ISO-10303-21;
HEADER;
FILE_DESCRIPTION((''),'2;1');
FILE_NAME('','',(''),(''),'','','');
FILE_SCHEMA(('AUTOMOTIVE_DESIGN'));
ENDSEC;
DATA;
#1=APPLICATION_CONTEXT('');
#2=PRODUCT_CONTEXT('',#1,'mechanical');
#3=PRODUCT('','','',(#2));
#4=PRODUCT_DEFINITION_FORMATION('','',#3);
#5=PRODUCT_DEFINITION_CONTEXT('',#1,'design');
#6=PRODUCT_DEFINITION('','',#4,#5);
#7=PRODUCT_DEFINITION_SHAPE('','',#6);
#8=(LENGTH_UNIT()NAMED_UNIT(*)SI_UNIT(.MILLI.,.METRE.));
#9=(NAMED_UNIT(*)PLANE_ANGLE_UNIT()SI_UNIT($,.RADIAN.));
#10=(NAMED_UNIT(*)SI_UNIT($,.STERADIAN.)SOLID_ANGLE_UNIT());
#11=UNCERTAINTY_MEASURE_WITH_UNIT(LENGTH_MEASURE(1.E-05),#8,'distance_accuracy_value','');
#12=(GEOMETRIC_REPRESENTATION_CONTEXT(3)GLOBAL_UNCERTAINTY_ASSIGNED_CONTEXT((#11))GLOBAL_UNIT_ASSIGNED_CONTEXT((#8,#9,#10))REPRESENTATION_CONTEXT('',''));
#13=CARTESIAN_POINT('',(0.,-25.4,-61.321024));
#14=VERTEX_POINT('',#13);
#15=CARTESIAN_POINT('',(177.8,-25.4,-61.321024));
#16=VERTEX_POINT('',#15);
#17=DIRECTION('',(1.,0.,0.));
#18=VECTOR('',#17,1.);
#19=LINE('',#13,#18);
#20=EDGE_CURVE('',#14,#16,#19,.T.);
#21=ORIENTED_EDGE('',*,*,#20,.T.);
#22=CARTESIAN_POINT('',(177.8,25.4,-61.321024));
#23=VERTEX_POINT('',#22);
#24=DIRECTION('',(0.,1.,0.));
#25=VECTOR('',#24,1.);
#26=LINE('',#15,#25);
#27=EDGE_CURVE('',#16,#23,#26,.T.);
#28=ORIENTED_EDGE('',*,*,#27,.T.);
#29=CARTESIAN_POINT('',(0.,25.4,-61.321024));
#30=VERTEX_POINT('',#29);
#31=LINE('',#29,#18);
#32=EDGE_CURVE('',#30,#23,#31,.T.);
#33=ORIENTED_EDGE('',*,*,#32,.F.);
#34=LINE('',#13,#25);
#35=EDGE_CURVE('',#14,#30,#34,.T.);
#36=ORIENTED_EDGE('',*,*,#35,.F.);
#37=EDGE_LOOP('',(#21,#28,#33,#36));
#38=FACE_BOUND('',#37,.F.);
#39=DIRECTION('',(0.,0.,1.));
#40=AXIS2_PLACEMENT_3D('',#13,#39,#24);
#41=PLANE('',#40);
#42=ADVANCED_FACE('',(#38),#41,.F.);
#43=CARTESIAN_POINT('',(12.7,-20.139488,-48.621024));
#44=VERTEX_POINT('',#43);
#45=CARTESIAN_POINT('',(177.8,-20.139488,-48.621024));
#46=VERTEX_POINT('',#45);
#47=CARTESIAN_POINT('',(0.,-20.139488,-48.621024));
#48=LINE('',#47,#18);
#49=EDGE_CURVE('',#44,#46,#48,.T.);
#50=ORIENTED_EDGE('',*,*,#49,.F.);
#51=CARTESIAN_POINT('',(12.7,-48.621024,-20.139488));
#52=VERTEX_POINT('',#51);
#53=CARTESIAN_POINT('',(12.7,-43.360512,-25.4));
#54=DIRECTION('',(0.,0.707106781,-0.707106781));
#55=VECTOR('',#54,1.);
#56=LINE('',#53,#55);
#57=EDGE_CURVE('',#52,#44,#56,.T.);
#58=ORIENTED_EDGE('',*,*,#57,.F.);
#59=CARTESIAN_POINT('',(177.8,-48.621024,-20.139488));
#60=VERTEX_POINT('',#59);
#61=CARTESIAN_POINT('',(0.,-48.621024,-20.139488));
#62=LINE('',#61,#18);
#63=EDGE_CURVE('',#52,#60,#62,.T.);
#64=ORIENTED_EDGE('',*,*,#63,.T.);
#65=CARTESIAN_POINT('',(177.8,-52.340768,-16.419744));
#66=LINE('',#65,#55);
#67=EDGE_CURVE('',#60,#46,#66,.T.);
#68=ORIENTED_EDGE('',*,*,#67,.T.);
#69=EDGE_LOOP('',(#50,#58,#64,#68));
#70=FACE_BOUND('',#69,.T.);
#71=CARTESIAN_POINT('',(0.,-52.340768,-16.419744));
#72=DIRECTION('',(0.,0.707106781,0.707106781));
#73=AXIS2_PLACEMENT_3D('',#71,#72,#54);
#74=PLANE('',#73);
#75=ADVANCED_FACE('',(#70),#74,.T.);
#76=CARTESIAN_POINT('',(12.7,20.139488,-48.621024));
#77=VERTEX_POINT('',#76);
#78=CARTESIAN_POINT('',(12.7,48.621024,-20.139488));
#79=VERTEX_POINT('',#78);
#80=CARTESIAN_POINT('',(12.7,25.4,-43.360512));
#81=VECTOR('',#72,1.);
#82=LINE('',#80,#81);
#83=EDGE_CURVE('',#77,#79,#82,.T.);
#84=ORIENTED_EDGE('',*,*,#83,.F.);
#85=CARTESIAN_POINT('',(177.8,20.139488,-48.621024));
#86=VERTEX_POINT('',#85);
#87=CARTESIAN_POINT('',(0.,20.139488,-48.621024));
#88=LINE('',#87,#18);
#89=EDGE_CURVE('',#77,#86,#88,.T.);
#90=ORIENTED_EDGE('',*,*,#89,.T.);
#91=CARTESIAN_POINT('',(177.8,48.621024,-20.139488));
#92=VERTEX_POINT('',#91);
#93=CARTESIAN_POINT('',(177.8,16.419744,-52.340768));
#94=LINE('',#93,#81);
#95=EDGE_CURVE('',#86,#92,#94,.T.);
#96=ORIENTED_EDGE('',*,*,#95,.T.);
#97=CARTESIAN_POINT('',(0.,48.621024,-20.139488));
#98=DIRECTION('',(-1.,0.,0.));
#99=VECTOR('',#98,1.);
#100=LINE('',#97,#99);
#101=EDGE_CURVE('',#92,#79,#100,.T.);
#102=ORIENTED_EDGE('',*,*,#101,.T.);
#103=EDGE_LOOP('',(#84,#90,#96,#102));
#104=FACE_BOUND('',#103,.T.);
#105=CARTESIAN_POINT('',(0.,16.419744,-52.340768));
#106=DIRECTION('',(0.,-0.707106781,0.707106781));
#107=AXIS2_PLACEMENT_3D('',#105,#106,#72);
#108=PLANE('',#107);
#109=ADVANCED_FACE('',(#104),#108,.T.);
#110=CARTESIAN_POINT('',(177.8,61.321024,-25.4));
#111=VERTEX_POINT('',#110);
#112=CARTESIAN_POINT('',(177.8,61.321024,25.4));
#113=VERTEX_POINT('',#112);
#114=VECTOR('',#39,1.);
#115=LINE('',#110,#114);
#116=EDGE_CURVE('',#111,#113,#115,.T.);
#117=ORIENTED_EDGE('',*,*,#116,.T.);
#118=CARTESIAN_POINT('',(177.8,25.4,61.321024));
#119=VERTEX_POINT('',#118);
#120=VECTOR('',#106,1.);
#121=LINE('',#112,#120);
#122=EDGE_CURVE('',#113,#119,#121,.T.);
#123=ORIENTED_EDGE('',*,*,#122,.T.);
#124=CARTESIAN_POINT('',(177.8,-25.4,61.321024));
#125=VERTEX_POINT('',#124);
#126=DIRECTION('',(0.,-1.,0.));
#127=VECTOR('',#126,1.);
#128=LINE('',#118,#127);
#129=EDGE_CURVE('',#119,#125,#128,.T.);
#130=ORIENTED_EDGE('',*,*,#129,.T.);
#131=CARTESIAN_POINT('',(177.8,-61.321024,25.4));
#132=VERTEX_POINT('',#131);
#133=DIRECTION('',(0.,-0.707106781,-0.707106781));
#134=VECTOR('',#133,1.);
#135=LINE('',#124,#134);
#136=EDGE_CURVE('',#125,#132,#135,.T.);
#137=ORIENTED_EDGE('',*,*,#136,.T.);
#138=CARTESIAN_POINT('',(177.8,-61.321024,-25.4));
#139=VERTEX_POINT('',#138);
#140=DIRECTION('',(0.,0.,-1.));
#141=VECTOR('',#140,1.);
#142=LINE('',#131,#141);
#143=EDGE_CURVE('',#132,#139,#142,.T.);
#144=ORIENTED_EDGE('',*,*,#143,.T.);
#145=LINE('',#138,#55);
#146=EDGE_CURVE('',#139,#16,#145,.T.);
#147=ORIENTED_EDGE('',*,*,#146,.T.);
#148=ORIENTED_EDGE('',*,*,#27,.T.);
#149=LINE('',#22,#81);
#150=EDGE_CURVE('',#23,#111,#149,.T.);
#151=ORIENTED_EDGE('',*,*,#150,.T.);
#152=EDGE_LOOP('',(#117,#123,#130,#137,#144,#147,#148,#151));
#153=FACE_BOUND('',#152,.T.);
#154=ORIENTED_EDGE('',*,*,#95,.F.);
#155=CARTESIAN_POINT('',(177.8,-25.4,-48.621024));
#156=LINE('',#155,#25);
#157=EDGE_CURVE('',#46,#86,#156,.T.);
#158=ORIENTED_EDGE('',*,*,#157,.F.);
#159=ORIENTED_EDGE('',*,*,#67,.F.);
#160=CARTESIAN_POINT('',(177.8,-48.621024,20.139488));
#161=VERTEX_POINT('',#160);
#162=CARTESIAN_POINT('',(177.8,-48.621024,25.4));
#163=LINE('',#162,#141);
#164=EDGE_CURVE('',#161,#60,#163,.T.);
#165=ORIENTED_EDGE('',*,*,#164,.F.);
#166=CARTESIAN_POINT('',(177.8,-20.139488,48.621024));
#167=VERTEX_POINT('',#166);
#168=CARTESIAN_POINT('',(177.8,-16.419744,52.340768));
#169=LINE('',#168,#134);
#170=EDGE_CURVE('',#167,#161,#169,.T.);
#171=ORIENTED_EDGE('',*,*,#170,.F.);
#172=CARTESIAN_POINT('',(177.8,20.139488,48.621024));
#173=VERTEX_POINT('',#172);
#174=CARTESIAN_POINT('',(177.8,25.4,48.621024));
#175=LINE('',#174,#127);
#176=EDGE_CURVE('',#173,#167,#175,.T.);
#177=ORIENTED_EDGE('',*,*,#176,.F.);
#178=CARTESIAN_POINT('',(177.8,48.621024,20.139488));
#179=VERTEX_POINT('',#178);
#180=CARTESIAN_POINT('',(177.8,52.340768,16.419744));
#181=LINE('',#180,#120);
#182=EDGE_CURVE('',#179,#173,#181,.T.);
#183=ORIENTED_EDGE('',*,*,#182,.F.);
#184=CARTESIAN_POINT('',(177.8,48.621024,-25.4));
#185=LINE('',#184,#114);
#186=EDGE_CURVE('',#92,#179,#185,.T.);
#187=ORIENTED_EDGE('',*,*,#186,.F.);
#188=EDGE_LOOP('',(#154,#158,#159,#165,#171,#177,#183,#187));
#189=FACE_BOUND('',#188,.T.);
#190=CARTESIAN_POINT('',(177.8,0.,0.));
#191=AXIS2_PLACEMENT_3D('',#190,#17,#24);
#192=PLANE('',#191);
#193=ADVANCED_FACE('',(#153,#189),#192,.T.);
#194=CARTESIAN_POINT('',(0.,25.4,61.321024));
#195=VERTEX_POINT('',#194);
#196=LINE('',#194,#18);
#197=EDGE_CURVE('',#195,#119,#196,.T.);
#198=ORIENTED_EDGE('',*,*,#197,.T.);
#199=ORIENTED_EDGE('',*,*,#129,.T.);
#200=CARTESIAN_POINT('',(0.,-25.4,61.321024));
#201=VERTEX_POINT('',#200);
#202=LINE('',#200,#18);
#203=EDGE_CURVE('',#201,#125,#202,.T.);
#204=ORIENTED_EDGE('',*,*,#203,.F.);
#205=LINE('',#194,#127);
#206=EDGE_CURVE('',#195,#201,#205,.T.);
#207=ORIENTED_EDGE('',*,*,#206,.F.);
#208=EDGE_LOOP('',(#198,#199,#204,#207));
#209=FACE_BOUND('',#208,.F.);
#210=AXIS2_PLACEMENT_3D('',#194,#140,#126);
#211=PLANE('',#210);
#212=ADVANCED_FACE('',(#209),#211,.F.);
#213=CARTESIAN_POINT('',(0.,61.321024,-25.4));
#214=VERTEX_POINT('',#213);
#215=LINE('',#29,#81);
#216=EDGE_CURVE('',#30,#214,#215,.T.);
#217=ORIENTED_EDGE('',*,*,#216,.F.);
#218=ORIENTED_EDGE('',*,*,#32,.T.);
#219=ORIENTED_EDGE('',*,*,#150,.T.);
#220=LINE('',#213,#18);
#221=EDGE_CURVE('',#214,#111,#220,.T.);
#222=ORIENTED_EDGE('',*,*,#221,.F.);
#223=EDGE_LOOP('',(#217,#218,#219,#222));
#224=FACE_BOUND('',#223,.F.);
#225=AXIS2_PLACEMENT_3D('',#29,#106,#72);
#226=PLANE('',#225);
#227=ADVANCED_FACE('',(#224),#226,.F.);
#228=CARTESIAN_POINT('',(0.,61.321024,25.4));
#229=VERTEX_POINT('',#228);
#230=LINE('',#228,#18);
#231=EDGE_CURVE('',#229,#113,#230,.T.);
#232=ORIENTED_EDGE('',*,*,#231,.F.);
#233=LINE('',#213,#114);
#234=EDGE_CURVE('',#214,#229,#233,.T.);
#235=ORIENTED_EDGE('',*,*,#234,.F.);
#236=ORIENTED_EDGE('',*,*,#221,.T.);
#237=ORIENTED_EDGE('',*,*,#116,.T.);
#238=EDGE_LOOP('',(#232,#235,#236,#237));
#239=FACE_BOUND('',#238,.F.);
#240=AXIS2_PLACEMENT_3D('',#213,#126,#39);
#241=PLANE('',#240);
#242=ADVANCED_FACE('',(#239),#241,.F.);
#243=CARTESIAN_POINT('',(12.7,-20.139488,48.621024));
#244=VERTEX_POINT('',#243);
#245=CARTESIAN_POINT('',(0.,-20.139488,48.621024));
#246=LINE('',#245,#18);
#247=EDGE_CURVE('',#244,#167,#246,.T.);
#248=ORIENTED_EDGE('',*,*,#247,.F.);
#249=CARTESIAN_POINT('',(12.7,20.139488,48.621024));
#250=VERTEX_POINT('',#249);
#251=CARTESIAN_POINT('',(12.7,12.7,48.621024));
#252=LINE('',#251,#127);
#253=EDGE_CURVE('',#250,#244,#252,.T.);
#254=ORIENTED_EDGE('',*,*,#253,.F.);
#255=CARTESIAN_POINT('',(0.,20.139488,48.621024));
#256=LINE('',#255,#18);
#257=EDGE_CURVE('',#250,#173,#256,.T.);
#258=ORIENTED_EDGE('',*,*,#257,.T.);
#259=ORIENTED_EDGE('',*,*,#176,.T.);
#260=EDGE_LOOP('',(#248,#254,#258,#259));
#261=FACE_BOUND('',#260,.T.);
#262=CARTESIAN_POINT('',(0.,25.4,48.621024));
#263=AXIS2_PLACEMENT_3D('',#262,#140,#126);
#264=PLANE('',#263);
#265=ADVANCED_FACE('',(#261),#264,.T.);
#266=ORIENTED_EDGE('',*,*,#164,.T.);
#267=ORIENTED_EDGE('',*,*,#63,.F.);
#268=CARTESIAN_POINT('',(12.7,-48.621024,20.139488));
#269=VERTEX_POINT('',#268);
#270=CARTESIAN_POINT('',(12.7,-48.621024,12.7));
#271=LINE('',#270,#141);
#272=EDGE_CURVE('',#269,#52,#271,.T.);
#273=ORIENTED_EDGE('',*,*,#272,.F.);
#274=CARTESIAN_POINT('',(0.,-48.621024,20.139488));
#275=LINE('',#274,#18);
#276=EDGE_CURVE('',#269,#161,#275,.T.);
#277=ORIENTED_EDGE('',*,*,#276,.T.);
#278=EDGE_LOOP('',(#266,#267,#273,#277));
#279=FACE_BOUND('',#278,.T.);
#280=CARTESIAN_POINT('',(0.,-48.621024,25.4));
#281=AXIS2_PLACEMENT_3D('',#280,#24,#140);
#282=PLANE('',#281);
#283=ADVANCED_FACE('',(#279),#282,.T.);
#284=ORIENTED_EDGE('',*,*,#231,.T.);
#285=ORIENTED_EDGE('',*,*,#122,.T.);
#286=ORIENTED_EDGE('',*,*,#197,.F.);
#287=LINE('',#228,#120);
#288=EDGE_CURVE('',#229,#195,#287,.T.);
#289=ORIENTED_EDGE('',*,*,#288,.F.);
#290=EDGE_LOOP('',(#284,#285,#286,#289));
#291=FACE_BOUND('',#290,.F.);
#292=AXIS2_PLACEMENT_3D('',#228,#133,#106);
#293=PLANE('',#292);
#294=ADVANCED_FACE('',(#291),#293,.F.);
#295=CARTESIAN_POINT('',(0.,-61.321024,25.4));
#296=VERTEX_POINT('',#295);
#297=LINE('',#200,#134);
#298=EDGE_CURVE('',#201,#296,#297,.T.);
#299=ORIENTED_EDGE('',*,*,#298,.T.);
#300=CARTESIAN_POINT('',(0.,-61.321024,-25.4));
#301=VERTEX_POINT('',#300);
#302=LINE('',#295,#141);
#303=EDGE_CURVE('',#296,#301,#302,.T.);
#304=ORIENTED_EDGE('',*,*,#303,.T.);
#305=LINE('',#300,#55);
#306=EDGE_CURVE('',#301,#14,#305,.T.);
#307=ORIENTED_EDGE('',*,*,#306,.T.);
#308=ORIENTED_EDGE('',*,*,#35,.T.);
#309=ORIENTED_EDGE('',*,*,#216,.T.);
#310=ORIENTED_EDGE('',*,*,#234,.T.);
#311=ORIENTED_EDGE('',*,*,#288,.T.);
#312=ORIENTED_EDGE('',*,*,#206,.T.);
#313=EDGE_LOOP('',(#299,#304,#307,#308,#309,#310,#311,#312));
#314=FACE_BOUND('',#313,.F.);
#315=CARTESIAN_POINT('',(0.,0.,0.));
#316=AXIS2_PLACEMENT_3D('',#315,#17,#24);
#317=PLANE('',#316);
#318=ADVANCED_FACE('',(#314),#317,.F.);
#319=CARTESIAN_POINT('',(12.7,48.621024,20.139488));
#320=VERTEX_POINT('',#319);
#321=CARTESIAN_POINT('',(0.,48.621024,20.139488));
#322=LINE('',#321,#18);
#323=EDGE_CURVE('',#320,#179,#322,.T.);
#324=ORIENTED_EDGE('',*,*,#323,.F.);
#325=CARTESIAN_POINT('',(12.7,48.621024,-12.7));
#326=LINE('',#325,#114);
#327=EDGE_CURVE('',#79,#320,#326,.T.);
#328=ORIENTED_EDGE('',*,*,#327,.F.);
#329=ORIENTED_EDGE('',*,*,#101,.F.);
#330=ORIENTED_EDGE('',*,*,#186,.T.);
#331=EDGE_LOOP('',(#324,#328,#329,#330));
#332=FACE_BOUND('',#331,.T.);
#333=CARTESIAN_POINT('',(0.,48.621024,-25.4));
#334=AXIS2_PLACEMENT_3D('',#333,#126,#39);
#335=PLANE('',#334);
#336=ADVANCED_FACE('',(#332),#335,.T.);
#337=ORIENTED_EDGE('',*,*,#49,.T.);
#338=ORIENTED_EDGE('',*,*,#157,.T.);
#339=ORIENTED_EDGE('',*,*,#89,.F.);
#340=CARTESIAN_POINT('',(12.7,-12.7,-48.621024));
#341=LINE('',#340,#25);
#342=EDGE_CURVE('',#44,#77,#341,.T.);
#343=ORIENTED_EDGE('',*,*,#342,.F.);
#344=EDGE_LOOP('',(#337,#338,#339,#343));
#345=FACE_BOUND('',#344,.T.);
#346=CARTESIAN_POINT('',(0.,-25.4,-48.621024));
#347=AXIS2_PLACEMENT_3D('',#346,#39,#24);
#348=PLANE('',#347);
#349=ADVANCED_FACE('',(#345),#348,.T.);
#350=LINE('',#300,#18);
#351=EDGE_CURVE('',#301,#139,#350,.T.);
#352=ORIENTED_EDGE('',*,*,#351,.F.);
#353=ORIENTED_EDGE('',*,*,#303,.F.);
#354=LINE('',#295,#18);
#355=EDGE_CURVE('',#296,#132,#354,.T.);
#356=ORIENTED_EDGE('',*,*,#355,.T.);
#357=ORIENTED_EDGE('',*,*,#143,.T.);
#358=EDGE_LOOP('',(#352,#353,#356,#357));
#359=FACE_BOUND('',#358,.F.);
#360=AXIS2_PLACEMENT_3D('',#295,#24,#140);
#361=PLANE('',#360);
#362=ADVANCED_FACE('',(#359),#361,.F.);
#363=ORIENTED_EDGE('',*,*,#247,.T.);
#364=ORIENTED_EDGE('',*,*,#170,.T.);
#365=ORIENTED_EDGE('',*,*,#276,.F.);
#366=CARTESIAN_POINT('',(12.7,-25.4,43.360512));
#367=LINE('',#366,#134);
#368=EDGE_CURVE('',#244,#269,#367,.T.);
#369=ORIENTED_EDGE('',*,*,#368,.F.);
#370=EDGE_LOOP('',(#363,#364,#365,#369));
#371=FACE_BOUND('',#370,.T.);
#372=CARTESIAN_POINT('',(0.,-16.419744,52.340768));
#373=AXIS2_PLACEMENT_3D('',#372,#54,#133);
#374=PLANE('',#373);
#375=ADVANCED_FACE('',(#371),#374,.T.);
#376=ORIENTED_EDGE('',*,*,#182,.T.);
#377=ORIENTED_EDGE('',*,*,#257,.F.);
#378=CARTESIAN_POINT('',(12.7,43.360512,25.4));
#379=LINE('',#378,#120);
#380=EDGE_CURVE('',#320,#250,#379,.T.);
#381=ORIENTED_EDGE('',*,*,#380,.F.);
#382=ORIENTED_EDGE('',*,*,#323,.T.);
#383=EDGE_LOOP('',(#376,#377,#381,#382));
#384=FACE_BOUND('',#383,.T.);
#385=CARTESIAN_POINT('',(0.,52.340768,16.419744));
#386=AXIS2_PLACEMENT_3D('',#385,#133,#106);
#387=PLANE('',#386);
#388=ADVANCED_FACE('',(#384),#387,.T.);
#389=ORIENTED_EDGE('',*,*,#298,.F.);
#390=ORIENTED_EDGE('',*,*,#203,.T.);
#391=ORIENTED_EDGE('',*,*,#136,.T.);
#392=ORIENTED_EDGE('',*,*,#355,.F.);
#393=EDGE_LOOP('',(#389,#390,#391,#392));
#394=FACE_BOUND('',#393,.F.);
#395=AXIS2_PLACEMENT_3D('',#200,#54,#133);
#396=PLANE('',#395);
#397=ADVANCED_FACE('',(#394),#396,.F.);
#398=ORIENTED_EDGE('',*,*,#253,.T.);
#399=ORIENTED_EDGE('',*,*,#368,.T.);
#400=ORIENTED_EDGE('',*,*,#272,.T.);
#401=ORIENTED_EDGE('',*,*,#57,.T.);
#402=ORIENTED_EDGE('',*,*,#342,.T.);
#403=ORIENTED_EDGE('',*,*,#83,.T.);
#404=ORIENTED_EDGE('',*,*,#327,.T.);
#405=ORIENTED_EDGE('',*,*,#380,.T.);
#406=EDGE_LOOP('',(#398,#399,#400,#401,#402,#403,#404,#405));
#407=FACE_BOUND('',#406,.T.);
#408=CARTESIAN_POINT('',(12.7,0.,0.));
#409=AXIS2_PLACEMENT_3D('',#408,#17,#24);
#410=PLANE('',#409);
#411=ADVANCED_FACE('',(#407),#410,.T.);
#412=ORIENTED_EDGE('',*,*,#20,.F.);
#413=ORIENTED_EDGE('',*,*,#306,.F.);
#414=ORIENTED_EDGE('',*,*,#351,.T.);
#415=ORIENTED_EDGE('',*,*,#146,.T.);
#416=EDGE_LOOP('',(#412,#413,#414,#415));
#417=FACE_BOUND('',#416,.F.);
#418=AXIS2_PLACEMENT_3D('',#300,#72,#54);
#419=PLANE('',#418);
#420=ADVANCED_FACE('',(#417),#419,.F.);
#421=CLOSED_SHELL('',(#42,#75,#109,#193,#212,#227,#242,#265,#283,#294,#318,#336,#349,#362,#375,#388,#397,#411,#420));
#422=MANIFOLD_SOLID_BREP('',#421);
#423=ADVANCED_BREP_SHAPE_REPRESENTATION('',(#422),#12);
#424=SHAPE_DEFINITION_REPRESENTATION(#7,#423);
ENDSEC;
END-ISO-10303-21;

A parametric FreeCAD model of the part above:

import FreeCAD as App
import Part
import Sketcher
from FreeCAD import Vector
Q = App.Units.Quantity


def faces_at(feature, points):
    """Names of the faces that lie closest to the given points."""
    faces = feature.Shape.Faces
    near = lambda p: min(range(len(faces)), key=lambda i: faces[i].distToShape(Part.Vertex(*p))[0])
    return sorted({f"Face{near(p) + 1}" for p in points})


def add_polygon(sketch, points):
    """Adds a closed chain of lines whose ends are joined by coincident constraints."""
    first, n = sketch.GeometryCount, len(points)
    for a, b in zip(points, points[1:] + points[:1]):
        sketch.addGeometry(Part.LineSegment(App.Vector(*a, 0), App.Vector(*b, 0)), False)
    for i in range(n):
        sketch.addConstraint(Sketcher.Constraint("Coincident", first + i, 2, first + (i + 1) % n, 1))

doc = App.newDocument("Part")
body = doc.addObject("PartDesign::Body", "Body")

sketch1 = body.newObject("Sketcher::SketchObject", "Sketch")
sketch1.AttachmentSupport = (doc.getObject("YZ_Plane"), [""])
sketch1.MapMode = "FlatFace"
add_polygon(sketch1, [(61, -25), (61, 25), (25, 61), (-25, 61), (-61, 25), (-61, -25), (-25, -61), (25, -61)])
sketch1.addConstraint([
    Sketcher.Constraint("Vertical", 0),
    Sketcher.Constraint("Horizontal", 2),
    Sketcher.Constraint("Vertical", 4),
    Sketcher.Constraint("Horizontal", 6),
    Sketcher.Constraint("Symmetric", 0, 2, 4, 2, -1, 1),
    Sketcher.Constraint("Symmetric", 1, 2, 5, 2, -1, 1),
    Sketcher.Constraint("Perpendicular", 1, 3),
    Sketcher.Constraint("Perpendicular", 5, 7),
    Sketcher.Constraint("Horizontal", 0, 2, 3, 2),
    Sketcher.Constraint("Horizontal", 4, 2, 7, 2),
    Sketcher.Constraint("Vertical", 2, 2, 5, 2),
    Sketcher.Constraint("Equal", 6, 0),
    Sketcher.Constraint("DistanceX", 2, 2, 2, 1, Q("2 in")),
    Sketcher.Constraint("Distance", 1, Q("2 in")),
])
pad1 = body.newObject("PartDesign::Pad", "Pad")
pad1.Profile = sketch1
pad1.Length = Q("7 in")
doc.recompute()

thickness = body.newObject("PartDesign::Thickness", "Thickness")
thickness.Base = (pad1, faces_at(pad1, [(177.8, 0, 0)]))
thickness.Value = Q("0.5 in")
thickness.Reversed = True
thickness.Join = "Arc"

doc.recompute()
